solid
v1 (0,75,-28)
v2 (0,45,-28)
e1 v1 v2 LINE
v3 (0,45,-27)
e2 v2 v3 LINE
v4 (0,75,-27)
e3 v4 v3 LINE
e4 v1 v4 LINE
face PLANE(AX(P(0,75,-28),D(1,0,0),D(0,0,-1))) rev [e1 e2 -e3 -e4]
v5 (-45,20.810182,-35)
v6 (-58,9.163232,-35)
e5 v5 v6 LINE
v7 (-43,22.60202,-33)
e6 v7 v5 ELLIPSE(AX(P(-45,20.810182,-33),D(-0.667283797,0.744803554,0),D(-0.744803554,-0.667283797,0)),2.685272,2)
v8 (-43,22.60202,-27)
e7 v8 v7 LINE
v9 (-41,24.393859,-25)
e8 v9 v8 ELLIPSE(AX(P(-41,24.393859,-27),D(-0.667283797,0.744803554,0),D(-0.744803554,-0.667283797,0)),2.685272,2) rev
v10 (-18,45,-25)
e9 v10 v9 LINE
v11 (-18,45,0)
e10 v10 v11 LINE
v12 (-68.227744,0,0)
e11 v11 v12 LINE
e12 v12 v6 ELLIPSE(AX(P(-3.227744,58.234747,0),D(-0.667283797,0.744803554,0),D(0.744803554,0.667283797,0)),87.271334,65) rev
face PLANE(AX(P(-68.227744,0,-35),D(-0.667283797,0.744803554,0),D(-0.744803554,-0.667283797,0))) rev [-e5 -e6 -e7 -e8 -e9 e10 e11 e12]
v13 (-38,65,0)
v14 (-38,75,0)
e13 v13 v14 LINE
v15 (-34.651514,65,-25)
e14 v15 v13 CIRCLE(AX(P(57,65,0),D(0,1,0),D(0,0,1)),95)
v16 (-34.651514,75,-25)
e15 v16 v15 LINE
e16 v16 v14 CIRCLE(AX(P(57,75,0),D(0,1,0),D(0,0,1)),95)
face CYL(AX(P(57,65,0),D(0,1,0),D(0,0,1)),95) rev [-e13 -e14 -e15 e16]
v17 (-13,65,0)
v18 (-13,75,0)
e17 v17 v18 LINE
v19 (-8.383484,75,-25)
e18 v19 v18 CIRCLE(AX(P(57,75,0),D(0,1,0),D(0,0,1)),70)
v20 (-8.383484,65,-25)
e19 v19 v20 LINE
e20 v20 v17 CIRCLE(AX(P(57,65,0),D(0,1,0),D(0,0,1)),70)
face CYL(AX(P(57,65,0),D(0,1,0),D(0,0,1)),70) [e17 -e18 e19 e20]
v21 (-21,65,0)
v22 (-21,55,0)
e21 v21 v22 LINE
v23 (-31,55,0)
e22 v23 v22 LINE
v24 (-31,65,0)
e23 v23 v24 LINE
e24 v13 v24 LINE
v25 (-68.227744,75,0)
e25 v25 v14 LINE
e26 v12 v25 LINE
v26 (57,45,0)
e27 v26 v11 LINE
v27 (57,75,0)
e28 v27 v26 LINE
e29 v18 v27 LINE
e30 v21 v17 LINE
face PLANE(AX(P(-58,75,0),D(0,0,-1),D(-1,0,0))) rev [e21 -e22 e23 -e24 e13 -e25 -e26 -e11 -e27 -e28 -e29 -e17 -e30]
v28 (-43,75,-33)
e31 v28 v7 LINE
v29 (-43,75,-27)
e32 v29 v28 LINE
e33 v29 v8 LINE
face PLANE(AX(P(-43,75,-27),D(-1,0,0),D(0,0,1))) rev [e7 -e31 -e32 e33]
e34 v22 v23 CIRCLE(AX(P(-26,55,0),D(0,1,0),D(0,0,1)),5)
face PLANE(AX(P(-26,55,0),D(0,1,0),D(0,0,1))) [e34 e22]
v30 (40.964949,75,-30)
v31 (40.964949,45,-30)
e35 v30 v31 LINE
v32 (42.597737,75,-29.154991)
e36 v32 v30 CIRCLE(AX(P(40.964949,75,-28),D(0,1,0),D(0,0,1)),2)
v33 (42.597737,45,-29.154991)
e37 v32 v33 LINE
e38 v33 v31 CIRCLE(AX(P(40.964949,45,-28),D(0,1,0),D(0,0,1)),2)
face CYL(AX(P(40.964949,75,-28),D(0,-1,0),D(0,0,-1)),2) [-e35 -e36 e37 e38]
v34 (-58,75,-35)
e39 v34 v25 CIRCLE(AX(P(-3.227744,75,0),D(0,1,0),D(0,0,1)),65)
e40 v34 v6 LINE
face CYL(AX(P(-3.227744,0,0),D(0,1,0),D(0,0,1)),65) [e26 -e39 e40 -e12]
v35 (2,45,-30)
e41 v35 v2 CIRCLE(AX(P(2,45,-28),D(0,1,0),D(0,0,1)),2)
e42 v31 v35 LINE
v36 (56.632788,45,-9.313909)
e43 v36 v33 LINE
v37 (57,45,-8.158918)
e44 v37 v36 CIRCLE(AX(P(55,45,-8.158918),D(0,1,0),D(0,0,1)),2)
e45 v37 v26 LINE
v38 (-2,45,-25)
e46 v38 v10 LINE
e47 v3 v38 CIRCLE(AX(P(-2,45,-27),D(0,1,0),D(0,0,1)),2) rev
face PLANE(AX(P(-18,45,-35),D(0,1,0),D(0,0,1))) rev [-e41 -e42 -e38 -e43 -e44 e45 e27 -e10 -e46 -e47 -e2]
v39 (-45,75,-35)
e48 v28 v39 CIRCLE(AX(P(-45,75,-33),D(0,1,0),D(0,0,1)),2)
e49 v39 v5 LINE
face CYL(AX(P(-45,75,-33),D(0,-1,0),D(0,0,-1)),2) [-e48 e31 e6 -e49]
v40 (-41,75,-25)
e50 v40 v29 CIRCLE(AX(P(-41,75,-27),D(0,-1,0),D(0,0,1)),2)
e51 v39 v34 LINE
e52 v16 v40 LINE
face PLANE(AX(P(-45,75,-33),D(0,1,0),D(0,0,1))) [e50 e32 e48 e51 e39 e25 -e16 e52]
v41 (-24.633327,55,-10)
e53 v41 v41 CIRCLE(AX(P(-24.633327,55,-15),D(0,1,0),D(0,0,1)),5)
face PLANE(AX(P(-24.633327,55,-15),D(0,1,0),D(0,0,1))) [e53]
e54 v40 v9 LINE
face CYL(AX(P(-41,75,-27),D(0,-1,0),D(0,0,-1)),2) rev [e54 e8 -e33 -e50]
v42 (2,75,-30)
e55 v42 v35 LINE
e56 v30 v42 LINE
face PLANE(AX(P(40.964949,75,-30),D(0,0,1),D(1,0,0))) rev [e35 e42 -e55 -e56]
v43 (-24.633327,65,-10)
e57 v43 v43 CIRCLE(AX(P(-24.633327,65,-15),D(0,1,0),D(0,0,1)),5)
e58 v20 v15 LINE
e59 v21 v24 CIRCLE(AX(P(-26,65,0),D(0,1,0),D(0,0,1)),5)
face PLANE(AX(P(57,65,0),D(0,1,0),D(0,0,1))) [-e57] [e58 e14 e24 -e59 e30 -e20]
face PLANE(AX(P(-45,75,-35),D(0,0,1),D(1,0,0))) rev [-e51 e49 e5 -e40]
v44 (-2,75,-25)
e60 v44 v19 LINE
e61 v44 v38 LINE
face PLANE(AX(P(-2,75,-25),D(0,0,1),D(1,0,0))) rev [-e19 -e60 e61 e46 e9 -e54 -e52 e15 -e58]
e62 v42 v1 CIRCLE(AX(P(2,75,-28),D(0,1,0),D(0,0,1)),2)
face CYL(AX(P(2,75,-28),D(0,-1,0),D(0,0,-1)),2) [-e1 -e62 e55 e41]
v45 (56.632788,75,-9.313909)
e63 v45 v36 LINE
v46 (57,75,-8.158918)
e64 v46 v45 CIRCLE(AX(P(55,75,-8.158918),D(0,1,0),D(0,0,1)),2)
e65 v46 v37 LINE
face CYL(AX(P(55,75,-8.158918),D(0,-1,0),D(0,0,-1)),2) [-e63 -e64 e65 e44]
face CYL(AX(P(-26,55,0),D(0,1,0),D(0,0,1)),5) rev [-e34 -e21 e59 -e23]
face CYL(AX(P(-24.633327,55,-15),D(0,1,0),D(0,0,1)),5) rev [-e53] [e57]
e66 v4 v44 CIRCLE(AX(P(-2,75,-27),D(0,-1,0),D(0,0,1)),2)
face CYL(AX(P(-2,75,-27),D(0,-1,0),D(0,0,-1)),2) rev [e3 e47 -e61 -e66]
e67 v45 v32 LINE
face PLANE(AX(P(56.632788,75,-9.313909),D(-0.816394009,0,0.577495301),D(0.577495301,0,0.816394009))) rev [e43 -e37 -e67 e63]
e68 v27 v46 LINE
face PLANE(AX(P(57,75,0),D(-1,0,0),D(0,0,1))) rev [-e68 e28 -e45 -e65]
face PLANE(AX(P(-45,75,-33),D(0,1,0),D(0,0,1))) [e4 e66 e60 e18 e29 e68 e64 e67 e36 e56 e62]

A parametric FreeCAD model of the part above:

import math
import FreeCAD as App
import Part
import Sketcher

V = App.Vector

doc = App.newDocument("Part")
body = doc.addObject("PartDesign::Body", "Body")

# Sketch on XZ plane
sketch1 = body.newObject("Sketcher::SketchObject", "Sketch")
sketch1.AttachmentSupport = (doc.getObject("XZ_Plane"), [""])
sketch1.MapMode = "FlatFace"
sketch1.addGeometry([
    Part.LineSegment(V(-58, 0, 0), V(57, 0, 0)),  # 0
    Part.LineSegment(V(57, 0, 0), V(57, -8.2, 0)),  # 1
    Part.ArcOfCircle(Part.Circle(V(55, -8.2, 0), V(0, 0, 1), 2), math.radians(-35), math.radians(0)),  # 2
    Part.LineSegment(V(56.6, -9.3, 0), V(42.6, -29.2, 0)),  # 3
    Part.ArcOfCircle(Part.Circle(V(41, -28, 0), V(0, 0, 1), 2), math.radians(-90), math.radians(-35)),  # 4
    Part.LineSegment(V(41, -30, 0), V(2, -30, 0)),  # 5
    Part.ArcOfCircle(Part.Circle(V(2, -28, 0), V(0, 0, 1), 2), math.radians(-180), math.radians(-90)),  # 6
    Part.LineSegment(V(0, -28, 0), V(0, -27, 0)),  # 7
    Part.ArcOfCircle(Part.Circle(V(-2, -27, 0), V(0, 0, 1), 2), math.radians(0), math.radians(90)),  # 8
    Part.LineSegment(V(-2, -25, 0), V(-41, -25, 0)),  # 9
    Part.ArcOfCircle(Part.Circle(V(-41, -27, 0), V(0, 0, 1), 2), math.radians(90), math.radians(180)),  # 10
    Part.LineSegment(V(-43, -27, 0), V(-43, -33, 0)),  # 11
    Part.ArcOfCircle(Part.Circle(V(-45, -33, 0), V(0, 0, 1), 2), math.radians(-90), math.radians(0)),  # 12
    Part.LineSegment(V(-45, -35, 0), V(-58, -35, 0)),  # 13
    Part.LineSegment(V(-58, -35, 0), V(-58, 0, 0)),  # 14
], False)
sketch1.addConstraint([
    Sketcher.Constraint("Coincident", 0, 2, 1, 1),
    Sketcher.Constraint("Tangent", 1, 2, 2, 2),
    Sketcher.Constraint("Tangent", 2, 1, 3, 1),
    Sketcher.Constraint("Tangent", 3, 2, 4, 2),
    Sketcher.Constraint("Tangent", 4, 1, 5, 1),
    Sketcher.Constraint("Tangent", 5, 2, 6, 2),
    Sketcher.Constraint("Tangent", 6, 1, 7, 1),
    Sketcher.Constraint("Tangent", 7, 2, 8, 1),
    Sketcher.Constraint("Tangent", 8, 2, 9, 1),
    Sketcher.Constraint("Tangent", 9, 2, 10, 1),
    Sketcher.Constraint("Tangent", 10, 2, 11, 1),
    Sketcher.Constraint("Tangent", 11, 2, 12, 2),
    Sketcher.Constraint("Tangent", 12, 1, 13, 1),
    Sketcher.Constraint("Coincident", 13, 2, 14, 1),
    Sketcher.Constraint("Coincident", 14, 2, 0, 1),
    Sketcher.Constraint("Horizontal", 0),
    Sketcher.Constraint("Vertical", 1),
    Sketcher.Constraint("Horizontal", 5),
    Sketcher.Constraint("Vertical", 7),
    Sketcher.Constraint("Horizontal", 9),
    Sketcher.Constraint("Vertical", 11),
    Sketcher.Constraint("Horizontal", 13),
    Sketcher.Constraint("Vertical", 14),
    Sketcher.Constraint("Equal", 2, 4),
    Sketcher.Constraint("Equal", 4, 6),
    Sketcher.Constraint("Equal", 6, 8),
    Sketcher.Constraint("Equal", 8, 10),
    Sketcher.Constraint("Equal", 10, 12),
    Sketcher.Constraint("PointOnObject", 0, 2, -1),
    Sketcher.Constraint("PointOnObject", 6, 1, -2),
    Sketcher.Constraint("Radius", 2, 2.0),
    Sketcher.Constraint("DistanceX", 0, 1, 0, 2, 115.0),
    Sketcher.Constraint("DistanceX", 9, 2, 9, 1, 39.0),
    Sketcher.Constraint("DistanceX", 13, 2, 13, 1, 13.0),
    Sketcher.Constraint("DistanceY", 7, 1, 7, 2, 1.0),
    Sketcher.Constraint("DistanceY", 11, 2, 11, 1, 6.0),
    Sketcher.Constraint("DistanceY", 14, 1, 14, 2, 35.0),
    Sketcher.Constraint("DistanceX", 5, 2, 5, 1, 38.964949),
    Sketcher.Constraint("DistanceY", 1, 2, 1, 1, 8.158918),
])
pad1 = body.newObject("PartDesign::Pad", "Pad")
pad1.Profile = sketch1
pad1.Length = 75
pad1.Reversed = True

# Sketch on XZ plane
sketch2 = body.newObject("Sketcher::SketchObject", "Sketch001")
sketch2.AttachmentSupport = (doc.getObject("XZ_Plane"), [""])
sketch2.MapMode = "FlatFace"
sketch2.AttachmentOffset = App.Placement(V(0, 0, -75), App.Rotation())
sketch2.addGeometry([
    Part.Circle(V(57, 0, 0), V(0, 0, 1), 95),
    Part.Circle(V(57, 0, 0), V(0, 0, 1), 70),
], False)
sketch2.addConstraint([
    Sketcher.Constraint("Coincident", 1, 3, 0, 3),
    Sketcher.Constraint("PointOnObject", 0, 3, -1),
    Sketcher.Constraint("Diameter", 0, 190.0),
    Sketcher.Constraint("Diameter", 1, 140.0),
    Sketcher.Constraint("DistanceX", -1, 1, 0, 3, 57.0),
])
pocket1 = body.newObject("PartDesign::Pocket", "Pocket")
pocket1.Profile = sketch2
pocket1.Length = 10
pocket1.Reversed = True

# Sketch on XZ plane
sketch3 = body.newObject("Sketcher::SketchObject", "Sketch002")
sketch3.AttachmentSupport = (doc.getObject("XZ_Plane"), [""])
sketch3.MapMode = "FlatFace"
sketch3.AttachmentOffset = App.Placement(V(0, 0, -65), App.Rotation())
sketch3.addGeometry([
    Part.Circle(V(-26, 0, 0), V(0, 0, 1), 5),
    Part.Circle(V(-25, -15, 0), V(0, 0, 1), 5),
], False)
sketch3.addConstraint([
    Sketcher.Constraint("Equal", 0, 1),
    Sketcher.Constraint("PointOnObject", 0, 3, -1),
    Sketcher.Constraint("Diameter", 0, 10.0),
    Sketcher.Constraint("DistanceX", 0, 3, -1, 1, 26.0),
    Sketcher.Constraint("DistanceY", 1, 3, -1, 1, 15.0),
    Sketcher.Constraint("DistanceX", 1, 3, -1, 1, 24.633327),
])
pocket2 = body.newObject("PartDesign::Pocket", "Pocket001")
pocket2.Profile = sketch3
pocket2.Length = 10
pocket2.Reversed = True

# Sketch on XZ plane
sketch4 = body.newObject("Sketcher::SketchObject", "Sketch003")
sketch4.AttachmentSupport = (doc.getObject("XZ_Plane"), [""])
sketch4.MapMode = "FlatFace"
sketch4.AttachmentOffset = App.Placement(V(0, 0, -75), App.Rotation())
sketch4.addGeometry([
    Part.LineSegment(V(-68, 0, 0), V(-58, 0, 0)),
    Part.LineSegment(V(-58, 0, 0), V(-58, -35, 0)),
    Part.ArcOfCircle(Part.Circle(V(-3, 0, 0), V(0, 0, 1), 65), math.radians(180), math.radians(213)),
], False)
sketch4.addConstraint([
    Sketcher.Constraint("Coincident", 0, 2, 1, 1),
    Sketcher.Constraint("Coincident", 1, 2, 2, 2),
    Sketcher.Constraint("Coincident", 2, 1, 0, 1),
    Sketcher.Constraint("Horizontal", 0),
    Sketcher.Constraint("Vertical", 1),
    Sketcher.Constraint("PointOnObject", 2, 3, -1),
    Sketcher.Constraint("PointOnObject", 0, 2, -1),
    Sketcher.Constraint("Radius", 2, 65.0),
    Sketcher.Constraint("DistanceY", 1, 2, 1, 1, 35.0),
    Sketcher.Constraint("DistanceX", 0, 2, -1, 1, 58.0),
])
pad2 = body.newObject("PartDesign::Pad", "Pad001")
pad2.Profile = sketch4
pad2.Length = 75

# Sketch on XY plane
sketch5 = body.newObject("Sketcher::SketchObject", "Sketch004")
sketch5.AttachmentSupport = (doc.getObject("XY_Plane"), [""])
sketch5.MapMode = "FlatFace"
sketch5.addGeometry([
    Part.LineSegment(V(-68, 0, 0), V(57, 0, 0)),
    Part.LineSegment(V(57, 0, 0), V(57, 45, 0)),
    Part.LineSegment(V(57, 45, 0), V(-18, 45, 0)),
    Part.LineSegment(V(-18, 45, 0), V(-68, 0, 0)),
], False)
sketch5.addConstraint([
    Sketcher.Constraint("Coincident", 0, 2, 1, 1),
    Sketcher.Constraint("Coincident", 1, 2, 2, 1),
    Sketcher.Constraint("Coincident", 2, 2, 3, 1),
    Sketcher.Constraint("Coincident", 3, 2, 0, 1),
    Sketcher.Constraint("Horizontal", 0),
    Sketcher.Constraint("Vertical", 1),
    Sketcher.Constraint("Horizontal", 2),
    Sketcher.Constraint("PointOnObject", 0, 2, -1),
    Sketcher.Constraint("DistanceX", 2, 2, 2, 1, 75.0),
    Sketcher.Constraint("DistanceY", 1, 1, 1, 2, 45.0),
    Sketcher.Constraint("DistanceX", -1, 1, 0, 2, 57.0),
    Sketcher.Constraint("DistanceX", 0, 1, 0, 2, 125.227744),
])
pocket3 = body.newObject("PartDesign::Pocket", "Pocket002")
pocket3.Profile = sketch5
pocket3.Type = "ThroughAll"

doc.recompute()
